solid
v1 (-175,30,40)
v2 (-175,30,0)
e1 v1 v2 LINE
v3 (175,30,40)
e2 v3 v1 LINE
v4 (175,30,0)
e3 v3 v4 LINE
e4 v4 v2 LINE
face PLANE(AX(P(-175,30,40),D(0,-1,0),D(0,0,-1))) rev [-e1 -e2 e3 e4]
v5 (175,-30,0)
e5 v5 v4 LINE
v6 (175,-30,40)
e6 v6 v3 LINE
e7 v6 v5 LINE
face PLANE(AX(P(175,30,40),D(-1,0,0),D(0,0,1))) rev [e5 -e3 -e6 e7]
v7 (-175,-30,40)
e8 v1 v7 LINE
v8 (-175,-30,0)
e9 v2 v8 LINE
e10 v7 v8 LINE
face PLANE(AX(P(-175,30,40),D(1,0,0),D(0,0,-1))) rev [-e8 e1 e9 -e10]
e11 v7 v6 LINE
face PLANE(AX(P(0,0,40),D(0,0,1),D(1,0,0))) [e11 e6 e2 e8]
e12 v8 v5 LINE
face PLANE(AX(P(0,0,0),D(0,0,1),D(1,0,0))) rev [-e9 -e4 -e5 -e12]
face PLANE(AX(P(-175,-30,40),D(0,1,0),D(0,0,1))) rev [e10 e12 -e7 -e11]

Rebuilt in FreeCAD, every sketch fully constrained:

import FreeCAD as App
import Part
import Sketcher
Q = App.Units.Quantity

doc = App.newDocument("Part")
body = doc.addObject("PartDesign::Body", "Body")

# Sketch on XY plane
sketch1 = body.newObject("Sketcher::SketchObject", "Sketch")
sketch1.AttachmentSupport = (doc.getObject("XY_Plane"), [""])
sketch1.MapMode = "FlatFace"
sketch1.addGeometry(Part.LineSegment(App.Vector(-175, 30, 0), App.Vector(-175, -30, 0)), False)
sketch1.addGeometry(Part.LineSegment(App.Vector(-175, -30, 0), App.Vector(175, -30, 0)), False)
sketch1.addGeometry(Part.LineSegment(App.Vector(175, -30, 0), App.Vector(175, 30, 0)), False)
sketch1.addGeometry(Part.LineSegment(App.Vector(175, 30, 0), App.Vector(-175, 30, 0)), False)
sketch1.addConstraint(Sketcher.Constraint("Coincident", 0, 2, 1, 1))
sketch1.addConstraint(Sketcher.Constraint("Coincident", 1, 2, 2, 1))
sketch1.addConstraint(Sketcher.Constraint("Coincident", 2, 2, 3, 1))
sketch1.addConstraint(Sketcher.Constraint("Coincident", 3, 2, 0, 1))
sketch1.addConstraint(Sketcher.Constraint("Vertical", 0))
sketch1.addConstraint(Sketcher.Constraint("Horizontal", 1))
sketch1.addConstraint(Sketcher.Constraint("Vertical", 2))
sketch1.addConstraint(Sketcher.Constraint("Horizontal", 3))
sketch1.addConstraint(Sketcher.Constraint("Symmetric", 0, 2, 2, 2, -1, 1))
sketch1.addConstraint(Sketcher.Constraint("DistanceX", 1, 1, 1, 2, Q("350 mm")))
sketch1.addConstraint(Sketcher.Constraint("DistanceY", 0, 2, 0, 1, Q("60 mm")))
pad1 = body.newObject("PartDesign::Pad", "Pad")
pad1.Profile = sketch1
pad1.Length = 40

doc.recompute()
